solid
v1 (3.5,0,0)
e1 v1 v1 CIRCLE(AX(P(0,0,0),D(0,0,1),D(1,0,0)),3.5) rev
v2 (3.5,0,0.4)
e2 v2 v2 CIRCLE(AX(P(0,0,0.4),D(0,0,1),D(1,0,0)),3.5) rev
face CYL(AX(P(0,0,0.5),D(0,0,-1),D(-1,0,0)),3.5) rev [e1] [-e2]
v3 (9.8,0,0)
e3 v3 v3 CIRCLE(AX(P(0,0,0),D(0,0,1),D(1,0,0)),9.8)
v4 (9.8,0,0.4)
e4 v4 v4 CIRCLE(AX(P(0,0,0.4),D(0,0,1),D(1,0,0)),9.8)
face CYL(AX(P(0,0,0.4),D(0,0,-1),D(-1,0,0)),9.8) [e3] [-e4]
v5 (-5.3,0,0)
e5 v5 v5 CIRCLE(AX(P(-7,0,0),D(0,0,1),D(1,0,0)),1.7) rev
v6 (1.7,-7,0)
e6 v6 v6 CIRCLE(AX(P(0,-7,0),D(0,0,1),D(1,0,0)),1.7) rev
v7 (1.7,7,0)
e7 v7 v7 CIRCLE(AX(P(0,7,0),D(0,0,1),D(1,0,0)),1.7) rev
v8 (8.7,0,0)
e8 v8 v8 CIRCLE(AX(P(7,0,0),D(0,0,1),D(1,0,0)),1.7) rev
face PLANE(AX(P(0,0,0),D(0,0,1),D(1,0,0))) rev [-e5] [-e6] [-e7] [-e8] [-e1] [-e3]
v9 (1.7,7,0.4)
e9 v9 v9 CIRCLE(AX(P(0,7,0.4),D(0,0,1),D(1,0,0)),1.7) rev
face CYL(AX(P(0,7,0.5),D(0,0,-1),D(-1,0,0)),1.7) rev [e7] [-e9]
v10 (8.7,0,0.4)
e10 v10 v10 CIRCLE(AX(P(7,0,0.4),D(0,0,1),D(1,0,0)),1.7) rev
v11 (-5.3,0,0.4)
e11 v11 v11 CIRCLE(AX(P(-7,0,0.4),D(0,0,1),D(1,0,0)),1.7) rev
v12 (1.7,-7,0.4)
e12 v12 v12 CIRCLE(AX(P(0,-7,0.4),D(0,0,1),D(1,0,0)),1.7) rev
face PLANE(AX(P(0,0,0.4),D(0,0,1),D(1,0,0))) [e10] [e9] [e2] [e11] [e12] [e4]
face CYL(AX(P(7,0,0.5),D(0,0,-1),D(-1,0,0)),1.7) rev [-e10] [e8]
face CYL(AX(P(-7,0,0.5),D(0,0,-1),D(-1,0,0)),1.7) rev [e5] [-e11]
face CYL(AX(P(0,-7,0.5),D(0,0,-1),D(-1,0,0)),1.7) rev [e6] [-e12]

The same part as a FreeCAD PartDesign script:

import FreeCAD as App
import Part
import Sketcher

V = App.Vector
Q = App.Units.Quantity

doc = App.newDocument("Part")
body = doc.addObject("PartDesign::Body", "Body")

sketch1 = doc.addObject("Sketcher::SketchObject", "Sketch")
body.addObject(sketch1)
sketch1.AttachmentSupport = (doc.XY_Plane, [""])
sketch1.MapMode = "FlatFace"
sketch1.addGeometry(Part.Circle(V(0, 0, 0), V(0, 0, 1), 10), False)
sketch1.addConstraint([
    Sketcher.Constraint("Coincident", 0, 3, -1, 1),
    Sketcher.Constraint("Diameter", 0, Q("19.6 mm")),
])
pad1 = doc.addObject("PartDesign::Pad", "Pad")
body.addObject(pad1)
pad1.Profile = sketch1
pad1.Length = 0.4

sketch2 = doc.addObject("Sketcher::SketchObject", "Sketch001")
body.addObject(sketch2)
sketch2.AttachmentSupport = (doc.XY_Plane, [""])
sketch2.MapMode = "FlatFace"
sketch2.AttachmentOffset = App.Placement(V(0, 0, -0.1), App.Rotation())
sketch2.addGeometry(Part.Circle(V(0, 0, 0), V(0, 0, 1), 3.5), False)
sketch2.addConstraint([
    Sketcher.Constraint("Coincident", 0, 3, -1, 1),
    Sketcher.Constraint("Diameter", 0, Q("7 mm")),
])
pocket1 = doc.addObject("PartDesign::Pocket", "Pocket")
body.addObject(pocket1)
pocket1.Profile = sketch2
pocket1.Length = 0.6
pocket1.Reversed = True

sketch3 = doc.addObject("Sketcher::SketchObject", "Sketch002")
body.addObject(sketch3)
sketch3.AttachmentSupport = (doc.XY_Plane, [""])
sketch3.MapMode = "FlatFace"
sketch3.AttachmentOffset = App.Placement(V(0, 0, -0.1), App.Rotation())
sketch3.addGeometry(Part.Circle(V(7, 0, 0), V(0, 0, 1), 1.7), False)
sketch3.addConstraint([
    Sketcher.Constraint("PointOnObject", 0, 3, -1),
    Sketcher.Constraint("Diameter", 0, Q("3.4 mm")),
    Sketcher.Constraint("DistanceX", -1, 1, 0, 3, Q("7 mm")),
])
pocket2 = doc.addObject("PartDesign::Pocket", "Pocket001")
body.addObject(pocket2)
pocket2.Profile = sketch3
pocket2.Length = 0.6
pocket2.Reversed = True

sketch4 = doc.addObject("Sketcher::SketchObject", "Sketch003")
body.addObject(sketch4)
sketch4.AttachmentSupport = (doc.XY_Plane, [""])
sketch4.MapMode = "FlatFace"
sketch4.AttachmentOffset = App.Placement(V(0, 0, -0.1), App.Rotation())
sketch4.addGeometry(Part.Circle(V(0, 7, 0), V(0, 0, 1), 1.7), False)
sketch4.addConstraint([
    Sketcher.Constraint("PointOnObject", 0, 3, -2),
    Sketcher.Constraint("Diameter", 0, Q("3.4 mm")),
    Sketcher.Constraint("DistanceY", -1, 1, 0, 3, Q("7 mm")),
])
pocket3 = doc.addObject("PartDesign::Pocket", "Pocket002")
body.addObject(pocket3)
pocket3.Profile = sketch4
pocket3.Length = 0.6
pocket3.Reversed = True

sketch5 = doc.addObject("Sketcher::SketchObject", "Sketch004")
body.addObject(sketch5)
sketch5.AttachmentSupport = (doc.XY_Plane, [""])
sketch5.MapMode = "FlatFace"
sketch5.AttachmentOffset = App.Placement(V(0, 0, -0.1), App.Rotation())
sketch5.addGeometry(Part.Circle(V(-7, 0, 0), V(0, 0, 1), 1.7), False)
sketch5.addConstraint([
    Sketcher.Constraint("PointOnObject", 0, 3, -1),
    Sketcher.Constraint("Diameter", 0, Q("3.4 mm")),
    Sketcher.Constraint("DistanceX", 0, 3, -1, 1, Q("7 mm")),
])
pocket4 = doc.addObject("PartDesign::Pocket", "Pocket003")
body.addObject(pocket4)
pocket4.Profile = sketch5
pocket4.Length = 0.6
pocket4.Reversed = True

sketch6 = doc.addObject("Sketcher::SketchObject", "Sketch005")
body.addObject(sketch6)
sketch6.AttachmentSupport = (doc.XY_Plane, [""])
sketch6.MapMode = "FlatFace"
sketch6.AttachmentOffset = App.Placement(V(0, 0, -0.1), App.Rotation())
sketch6.addGeometry(Part.Circle(V(0, -7, 0), V(0, 0, 1), 1.7), False)
sketch6.addConstraint([
    Sketcher.Constraint("PointOnObject", 0, 3, -2),
    Sketcher.Constraint("Diameter", 0, Q("3.4 mm")),
    Sketcher.Constraint("DistanceY", 0, 3, -1, 1, Q("7 mm")),
])
pocket5 = doc.addObject("PartDesign::Pocket", "Pocket004")
body.addObject(pocket5)
pocket5.Profile = sketch6
pocket5.Length = 0.6
pocket5.Reversed = True

doc.recompute()
